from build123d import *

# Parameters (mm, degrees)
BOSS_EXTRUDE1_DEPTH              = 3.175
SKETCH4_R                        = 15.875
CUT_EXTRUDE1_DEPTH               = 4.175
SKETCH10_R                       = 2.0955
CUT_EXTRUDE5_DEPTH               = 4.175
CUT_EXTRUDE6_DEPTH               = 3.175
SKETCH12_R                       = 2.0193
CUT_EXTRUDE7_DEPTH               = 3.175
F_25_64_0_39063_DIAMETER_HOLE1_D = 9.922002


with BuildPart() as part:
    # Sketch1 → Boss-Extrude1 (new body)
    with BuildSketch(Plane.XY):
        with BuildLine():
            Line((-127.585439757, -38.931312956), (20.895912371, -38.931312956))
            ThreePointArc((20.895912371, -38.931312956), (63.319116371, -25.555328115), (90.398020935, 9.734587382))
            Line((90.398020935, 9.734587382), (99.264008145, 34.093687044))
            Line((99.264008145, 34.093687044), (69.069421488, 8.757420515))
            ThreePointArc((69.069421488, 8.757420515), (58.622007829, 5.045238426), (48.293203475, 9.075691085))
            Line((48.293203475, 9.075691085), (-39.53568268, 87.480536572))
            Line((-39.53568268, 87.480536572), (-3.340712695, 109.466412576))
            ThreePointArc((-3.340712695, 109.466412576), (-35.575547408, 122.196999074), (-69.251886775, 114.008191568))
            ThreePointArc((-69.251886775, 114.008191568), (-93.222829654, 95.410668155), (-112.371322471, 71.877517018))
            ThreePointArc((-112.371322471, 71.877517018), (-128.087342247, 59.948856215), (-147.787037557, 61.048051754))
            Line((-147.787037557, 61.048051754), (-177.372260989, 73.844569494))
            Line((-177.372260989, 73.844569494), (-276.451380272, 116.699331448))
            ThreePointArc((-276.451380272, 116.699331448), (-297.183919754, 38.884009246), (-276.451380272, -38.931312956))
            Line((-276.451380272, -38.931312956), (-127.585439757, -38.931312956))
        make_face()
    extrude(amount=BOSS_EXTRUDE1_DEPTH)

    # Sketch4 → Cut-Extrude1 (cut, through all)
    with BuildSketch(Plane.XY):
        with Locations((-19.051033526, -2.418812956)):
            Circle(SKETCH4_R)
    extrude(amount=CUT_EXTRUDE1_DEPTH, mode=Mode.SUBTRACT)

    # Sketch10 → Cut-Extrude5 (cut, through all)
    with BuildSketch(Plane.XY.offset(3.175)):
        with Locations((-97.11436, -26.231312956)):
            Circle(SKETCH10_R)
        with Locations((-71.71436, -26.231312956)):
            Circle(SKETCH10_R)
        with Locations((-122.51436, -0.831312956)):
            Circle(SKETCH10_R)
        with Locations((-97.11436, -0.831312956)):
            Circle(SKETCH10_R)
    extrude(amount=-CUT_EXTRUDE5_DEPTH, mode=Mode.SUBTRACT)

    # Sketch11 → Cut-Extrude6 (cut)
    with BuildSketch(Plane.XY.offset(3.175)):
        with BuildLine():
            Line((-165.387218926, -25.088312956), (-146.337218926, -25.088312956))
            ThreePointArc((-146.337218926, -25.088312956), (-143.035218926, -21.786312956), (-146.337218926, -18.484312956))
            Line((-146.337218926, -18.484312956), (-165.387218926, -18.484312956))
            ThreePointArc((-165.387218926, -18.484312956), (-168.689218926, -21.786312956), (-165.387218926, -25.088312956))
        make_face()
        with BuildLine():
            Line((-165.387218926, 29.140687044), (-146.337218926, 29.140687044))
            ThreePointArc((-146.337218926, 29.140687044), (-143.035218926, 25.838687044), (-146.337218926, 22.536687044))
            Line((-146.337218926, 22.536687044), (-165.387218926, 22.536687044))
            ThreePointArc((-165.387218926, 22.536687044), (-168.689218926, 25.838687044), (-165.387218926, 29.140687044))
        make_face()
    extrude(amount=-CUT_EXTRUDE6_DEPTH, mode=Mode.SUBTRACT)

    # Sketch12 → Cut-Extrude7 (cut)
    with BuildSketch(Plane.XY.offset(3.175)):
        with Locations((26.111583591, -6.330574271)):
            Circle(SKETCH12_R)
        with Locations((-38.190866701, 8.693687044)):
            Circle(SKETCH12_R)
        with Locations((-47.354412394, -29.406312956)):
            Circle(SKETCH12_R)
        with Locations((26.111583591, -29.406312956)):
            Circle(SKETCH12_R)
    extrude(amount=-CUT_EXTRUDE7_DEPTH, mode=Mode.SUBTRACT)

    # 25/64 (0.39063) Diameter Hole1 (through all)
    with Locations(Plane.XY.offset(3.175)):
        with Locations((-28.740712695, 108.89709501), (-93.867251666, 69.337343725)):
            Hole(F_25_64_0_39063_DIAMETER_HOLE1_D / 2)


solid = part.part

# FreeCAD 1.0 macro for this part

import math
import FreeCAD as App
import Part
import Sketcher
from FreeCAD import Vector
Q = App.Units.Quantity

doc = App.newDocument("Part")
body = doc.addObject("PartDesign::Body", "Body")

# Sketch on XY plane
sketch1 = body.newObject("Sketcher::SketchObject", "Sketch")
sketch1.AttachmentSupport = (doc.getObject("XY_Plane"), [""])
sketch1.MapMode = "FlatFace"
sketch1.addGeometry([
    Part.ArcOfCircle(Part.Circle(Vector(20.895912, 35.031286, 0), Vector(0, 0, 1), 73.962599), math.radians(-90), math.radians(-20)),  # 0
    Part.LineSegment(Vector(90.398021, 9.734587, 0), Vector(99.264008, 34.093687, 0)),  # 1
    Part.LineSegment(Vector(99.264008, 34.093687, 0), Vector(69.069421, 8.757421, 0)),  # 2
    Part.ArcOfCircle(Part.Circle(Vector(58.865168, 20.918376, 0), Vector(0, 0, 1), 15.875), math.radians(-131.755289), math.radians(-50)),  # 3
    Part.LineSegment(Vector(48.293203, 9.075691, 0), Vector(-39.535683, 87.480537, 0)),  # 4
    Part.LineSegment(Vector(-39.535683, 87.480537, 0), Vector(-3.340713, 109.466413, 0)),  # 5
    Part.ArcOfCircle(Part.Circle(Vector(-39.513393, 65.05022, 0), Vector(0, 0, 1), 57.282292), math.radians(50.840525), math.radians(121.275711)),  # 6
    Part.ArcOfCircle(Part.Circle(Vector(0, 0, 0), Vector(0, 0, 1), 133.392997), math.radians(121.275711), math.radians(147.395275)),  # 7
    Part.ArcOfCircle(Part.Circle(Vector(-136.44313, 87.274877, 0), Vector(0, 0, 1), 28.575), math.radians(-113.389965), math.radians(-32.604725)),  # 8
    Part.LineSegment(Vector(-147.787038, 61.048052, 0), Vector(-177.372261, 73.844569, 0)),  # 9
    Part.LineSegment(Vector(-177.372261, 73.844569, 0), Vector(-276.45138, 116.699331, 0)),  # 10
    Part.ArcOfCircle(Part.Circle(Vector(-140.785747, 38.884009, 0), Vector(0, 0, 1), 156.398172), math.radians(150.162207), math.radians(209.837793)),  # 11
    Part.LineSegment(Vector(-276.45138, -38.931313, 0), Vector(20.895912, -38.931313, 0)),  # 12
], False)
sketch1.addConstraint([
    Sketcher.Constraint("Coincident", 0, 2, 1, 1),
    Sketcher.Constraint("Coincident", 1, 2, 2, 1),
    Sketcher.Constraint("Coincident", 2, 2, 3, 2),
    Sketcher.Constraint("Coincident", 3, 1, 4, 1),
    Sketcher.Constraint("Coincident", 4, 2, 5, 1),
    Sketcher.Constraint("Coincident", 5, 2, 6, 1),
    Sketcher.Constraint("Coincident", 6, 2, 7, 1),
    Sketcher.Constraint("Coincident", 7, 2, 8, 2),
    Sketcher.Constraint("Coincident", 8, 1, 9, 1),
    Sketcher.Constraint("Coincident", 9, 2, 10, 1),
    Sketcher.Constraint("Coincident", 10, 2, 11, 1),
    Sketcher.Constraint("Coincident", 11, 2, 12, 1),
    Sketcher.Constraint("Coincident", 12, 2, 0, 1),
    Sketcher.Constraint("Horizontal", 12),
    Sketcher.Constraint("Coincident", 7, 3, -1, 1),
    Sketcher.Constraint("Radius", 3, Q("0.625 in")),
    Sketcher.Constraint("Radius", 8, Q("1.125 in")),
    Sketcher.Constraint("Distance", 10, Q("4.25 in")),
    Sketcher.Constraint("Radius", 0, Q("73.962599 mm")),
    Sketcher.Constraint("Radius", 6, Q("57.282292 mm")),
    Sketcher.Constraint("Radius", 7, Q("133.392997 mm")),
    Sketcher.Constraint("Radius", 11, Q("156.398172 mm")),
    Sketcher.Constraint("DistanceY", 11, 3, 8, 1, Q("0.8726001 in")),
    Sketcher.Constraint("DistanceY", 8, 1, 9, 2, Q("0.5037999 in")),
    Sketcher.Constraint("Distance", 5, Q("42.349198 mm")),
    Sketcher.Constraint("DistanceX", 8, 3, 3, 3, Q("195.308298 mm")),
    Sketcher.Constraint("DistanceY", 3, 3, 8, 3, Q("66.356501 mm")),
    Sketcher.Constraint("DistanceY", 0, 2, 0, 3, Q("25.296699 mm")),
    Sketcher.Constraint("DistanceY", 0, 2, 1, 2, Q("24.3591 mm")),
    Sketcher.Constraint("DistanceX", 6, 3, 1, 2, Q("138.777401 mm")),
    Sketcher.Constraint("DistanceX", 2, 2, 0, 2, Q("21.328599 mm")),
    Sketcher.Constraint("DistanceX", 12, 1, 12, 2, Q("297.347293 mm")),
    Sketcher.Constraint("DistanceX", -1, 1, 3, 3, Q("58.865168 mm")),
    Sketcher.Constraint("DistanceY", -1, 1, 6, 3, Q("65.05022 mm")),
    Sketcher.Constraint("DistanceY", -1, 1, 11, 3, Q("38.884009 mm")),
    Sketcher.Constraint("DistanceX", -1, 1, 0, 2, Q("90.398021 mm")),
    Sketcher.Constraint("DistanceY", -1, 1, 3, 1, Q("9.075691 mm")),
    Sketcher.Constraint("DistanceY", -1, 1, 6, 2, Q("114.008192 mm")),
    Sketcher.Constraint("DistanceX", 9, 2, -1, 1, Q("177.372261 mm")),
    Sketcher.Constraint("DistanceX", 10, 2, -1, 1, Q("276.45138 mm")),
    Sketcher.Constraint("DistanceX", 11, 2, -1, 1, Q("276.45138 mm")),
    Sketcher.Constraint("DistanceX", 4, 2, 6, 3, Q("0.022289 mm")),
    Sketcher.Constraint("DistanceY", 0, 3, 4, 2, Q("52.44925 mm")),
    Sketcher.Constraint("DistanceY", 7, 2, 8, 3, Q("15.39736 mm")),
])
pad1 = body.newObject("PartDesign::Pad", "Pad")
pad1.Profile = sketch1
pad1.Length = Q("0.125 in")

# Sketch on XY plane
sketch2 = body.newObject("Sketcher::SketchObject", "Sketch001")
sketch2.AttachmentSupport = (doc.getObject("XY_Plane"), [""])
sketch2.MapMode = "FlatFace"
sketch2.addGeometry(Part.Circle(Vector(-19, -2, 0), Vector(0, 0, 1), 16), False)
sketch2.addConstraint([
    Sketcher.Constraint("Diameter", 0, Q("1.25 in")),
    Sketcher.Constraint("DistanceX", 0, 3, -1, 1, Q("19.051034 mm")),
    Sketcher.Constraint("DistanceY", 0, 3, -1, 1, Q("2.418813 mm")),
])
pocket1 = body.newObject("PartDesign::Pocket", "Pocket")
pocket1.Profile = sketch2
pocket1.Type = "ThroughAll"
pocket1.Reversed = True

# Sketch on XY plane
sketch3 = body.newObject("Sketcher::SketchObject", "Sketch002")
sketch3.AttachmentSupport = (doc.getObject("XY_Plane"), [""])
sketch3.MapMode = "FlatFace"
sketch3.AttachmentOffset = App.Placement(Vector(0, 0, 0.125 * 25.4), App.Rotation())
sketch3.addGeometry([
    Part.Circle(Vector(-97.1, -26.2, 0), Vector(0, 0, 1), 2.1),
    Part.Circle(Vector(-71.7, -26.2, 0), Vector(0, 0, 1), 2.1),
    Part.Circle(Vector(-122.5, -0.8, 0), Vector(0, 0, 1), 2.1),
    Part.Circle(Vector(-97.1, -0.8, 0), Vector(0, 0, 1), 2.1),
], False)
sketch3.addConstraint([
    Sketcher.Constraint("Equal", 0, 1),
    Sketcher.Constraint("Equal", 1, 2),
    Sketcher.Constraint("Equal", 2, 3),
    Sketcher.Constraint("Horizontal", 0, 3, 1, 3),
    Sketcher.Constraint("Horizontal", 2, 3, 3, 3),
    Sketcher.Constraint("Vertical", 0, 3, 3, 3),
    Sketcher.Constraint("Diameter", 0, Q("0.165 in")),
    Sketcher.Constraint("DistanceX", 0, 3, 1, 3, Q("1 in")),
    Sketcher.Constraint("DistanceX", 2, 3, 0, 3, Q("1 in")),
    Sketcher.Constraint("DistanceY", 0, 3, 2, 3, Q("1 in")),
    Sketcher.Constraint("DistanceX", 0, 3, -1, 1, Q("3.8234 in")),
    Sketcher.Constraint("DistanceY", 0, 3, -1, 1, Q("26.231313 mm")),
])
pocket2 = body.newObject("PartDesign::Pocket", "Pocket001")
pocket2.Profile = sketch3
pocket2.Type = "ThroughAll"

# Sketch on XY plane
sketch4 = body.newObject("Sketcher::SketchObject", "Sketch003")
sketch4.AttachmentSupport = (doc.getObject("XY_Plane"), [""])
sketch4.MapMode = "FlatFace"
sketch4.AttachmentOffset = App.Placement(Vector(0, 0, 0.125 * 25.4), App.Rotation())
sketch4.addGeometry([
    Part.LineSegment(Vector(-165.4, -25.1, 0), Vector(-146.3, -25.1, 0)),  # 0
    Part.ArcOfCircle(Part.Circle(Vector(-146.3, -21.8, 0), Vector(0, 0, 1), 3.3), math.radians(-90), math.radians(90)),  # 1
    Part.LineSegment(Vector(-146.3, -18.5, 0), Vector(-165.4, -18.5, 0)),  # 2
    Part.ArcOfCircle(Part.Circle(Vector(-165.4, -21.8, 0), Vector(0, 0, 1), 3.3), math.radians(90), math.radians(270)),  # 3
    Part.LineSegment(Vector(-146.3, 29.1, 0), Vector(-165.4, 29.1, 0)),  # 4
    Part.ArcOfCircle(Part.Circle(Vector(-165.4, 25.8, 0), Vector(0, 0, 1), 3.3), math.radians(90), math.radians(270)),  # 5
    Part.LineSegment(Vector(-165.4, 22.5, 0), Vector(-146.3, 22.5, 0)),  # 6
    Part.ArcOfCircle(Part.Circle(Vector(-146.3, 25.8, 0), Vector(0, 0, 1), 3.3), math.radians(-90), math.radians(90)),  # 7
], False)
sketch4.addConstraint([
    Sketcher.Constraint("Tangent", 0, 2, 1, 1),
    Sketcher.Constraint("Tangent", 1, 2, 2, 1),
    Sketcher.Constraint("Tangent", 2, 2, 3, 1),
    Sketcher.Constraint("Tangent", 3, 2, 0, 1),
    Sketcher.Constraint("Tangent", 4, 2, 5, 1),
    Sketcher.Constraint("Tangent", 5, 2, 6, 1),
    Sketcher.Constraint("Tangent", 6, 2, 7, 1),
    Sketcher.Constraint("Tangent", 7, 2, 4, 1),
    Sketcher.Constraint("Horizontal", 0),
    Sketcher.Constraint("Horizontal", 2),
    Sketcher.Constraint("Horizontal", 4),
    Sketcher.Constraint("Horizontal", 6),
    Sketcher.Constraint("Equal", 3, 5),
    Sketcher.Constraint("Vertical", 3, 3, 5, 3),
    Sketcher.Constraint("Vertical", 1, 3, 7, 3),
    Sketcher.Constraint("Radius", 1, Q("0.13 in")),
    Sketcher.Constraint("DistanceX", 0, 1, 0, 2, Q("0.75 in")),
    Sketcher.Constraint("DistanceY", 3, 3, 5, 3, Q("1.875 in")),
    Sketcher.Constraint("DistanceX", 1, 3, -1, 1, Q("146.337219 mm")),
    Sketcher.Constraint("DistanceY", 1, 3, -1, 1, Q("21.786313 mm")),
])
pocket3 = body.newObject("PartDesign::Pocket", "Pocket002")
pocket3.Profile = sketch4
pocket3.Length = Q("0.125 in")

# Sketch on XY plane
sketch5 = body.newObject("Sketcher::SketchObject", "Sketch004")
sketch5.AttachmentSupport = (doc.getObject("XY_Plane"), [""])
sketch5.MapMode = "FlatFace"
sketch5.AttachmentOffset = App.Placement(Vector(0, 0, 0.125 * 25.4), App.Rotation())
sketch5.addGeometry([
    Part.Circle(Vector(26.1, -6.3, 0), Vector(0, 0, 1), 2),
    Part.Circle(Vector(-38.2, 8.7, 0), Vector(0, 0, 1), 2),
    Part.Circle(Vector(-47.4, -29.4, 0), Vector(0, 0, 1), 2),
    Part.Circle(Vector(26.1, -29.4, 0), Vector(0, 0, 1), 2),
], False)
sketch5.addConstraint([
    Sketcher.Constraint("Equal", 0, 1),
    Sketcher.Constraint("Equal", 1, 2),
    Sketcher.Constraint("Equal", 2, 3),
    Sketcher.Constraint("Horizontal", 2, 3, 3, 3),
    Sketcher.Constraint("Vertical", 0, 3, 3, 3),
    Sketcher.Constraint("Diameter", 0, Q("0.159 in")),
    Sketcher.Constraint("DistanceY", 2, 3, 1, 3, Q("1.5 in")),
    Sketcher.Constraint("DistanceX", 1, 3, 0, 3, Q("64.30245 mm")),
    Sketcher.Constraint("DistanceY", 0, 3, 1, 3, Q("15.024261 mm")),
    Sketcher.Constraint("DistanceX", -1, 1, 0, 3, Q("26.111584 mm")),
    Sketcher.Constraint("DistanceY", 0, 3, -1, 1, Q("6.330574 mm")),
    Sketcher.Constraint("DistanceX", 2, 3, -1, 1, Q("47.354412 mm")),
])
pocket4 = body.newObject("PartDesign::Pocket", "Pocket003")
pocket4.Profile = sketch5
pocket4.Length = Q("0.125 in")

# Sketch on XY plane
sketch6 = body.newObject("Sketcher::SketchObject", "Sketch005")
sketch6.AttachmentSupport = (doc.getObject("XY_Plane"), [""])
sketch6.MapMode = "FlatFace"
sketch6.AttachmentOffset = App.Placement(Vector(0, 0, 0.125 * 25.4), App.Rotation())
sketch6.addGeometry([
    Part.Circle(Vector(-28.7, 108.9, 0), Vector(0, 0, 1), 5),
    Part.Circle(Vector(-93.9, 69.3, 0), Vector(0, 0, 1), 5),
], False)
sketch6.addConstraint([
    Sketcher.Constraint("Equal", 0, 1),
    Sketcher.Constraint("Diameter", 0, Q("9.922002 mm")),
    Sketcher.Constraint("DistanceX", 1, 3, -1, 1, Q("93.867252 mm")),
    Sketcher.Constraint("DistanceX", 1, 3, 0, 3, Q("65.126539 mm")),
    Sketcher.Constraint("DistanceY", 1, 3, 0, 3, Q("39.559751 mm")),
    Sketcher.Constraint("DistanceY", -1, 1, 0, 3, Q("108.897095 mm")),
])
doc.recompute()
hole = body.newObject("PartDesign::Hole", "Hole")
hole.Profile = sketch6
hole.ThreadType = "None"
hole.Diameter = 9.922002
hole.DepthType = "ThroughAll"

doc.recompute()
